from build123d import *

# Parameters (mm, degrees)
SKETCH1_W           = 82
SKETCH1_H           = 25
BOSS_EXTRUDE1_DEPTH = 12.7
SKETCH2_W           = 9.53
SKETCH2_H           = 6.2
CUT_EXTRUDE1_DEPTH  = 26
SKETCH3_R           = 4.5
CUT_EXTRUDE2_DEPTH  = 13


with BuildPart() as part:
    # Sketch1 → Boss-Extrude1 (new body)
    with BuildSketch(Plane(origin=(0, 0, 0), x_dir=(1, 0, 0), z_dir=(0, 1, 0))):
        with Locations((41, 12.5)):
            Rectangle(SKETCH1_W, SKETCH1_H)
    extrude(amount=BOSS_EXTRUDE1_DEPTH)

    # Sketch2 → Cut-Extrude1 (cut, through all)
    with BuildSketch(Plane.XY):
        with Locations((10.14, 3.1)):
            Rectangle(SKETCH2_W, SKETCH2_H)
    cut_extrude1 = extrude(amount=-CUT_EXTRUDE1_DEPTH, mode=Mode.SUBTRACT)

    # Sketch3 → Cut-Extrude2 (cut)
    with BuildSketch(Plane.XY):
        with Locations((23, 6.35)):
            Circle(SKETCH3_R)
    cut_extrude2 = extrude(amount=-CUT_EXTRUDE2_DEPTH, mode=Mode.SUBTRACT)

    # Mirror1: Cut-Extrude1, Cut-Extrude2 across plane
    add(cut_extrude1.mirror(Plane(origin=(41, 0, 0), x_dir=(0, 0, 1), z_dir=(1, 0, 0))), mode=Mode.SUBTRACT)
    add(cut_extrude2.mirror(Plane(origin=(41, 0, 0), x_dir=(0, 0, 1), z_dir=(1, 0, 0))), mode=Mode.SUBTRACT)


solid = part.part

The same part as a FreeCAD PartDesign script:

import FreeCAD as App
import Part
import Sketcher

V = App.Vector
Q = App.Units.Quantity

doc = App.newDocument("Part")
body = doc.addObject("PartDesign::Body", "Body")

# Sketch on XZ plane
sketch1 = body.newObject("Sketcher::SketchObject", "Sketch")
sketch1.AttachmentSupport = (doc.getObject("XZ_Plane"), [""])
sketch1.MapMode = "FlatFace"
sketch1.addGeometry(Part.LineSegment(V(0, -25, 0), V(0, 0, 0)), False)
sketch1.addGeometry(Part.LineSegment(V(0, 0, 0), V(82, 0, 0)), False)
sketch1.addGeometry(Part.LineSegment(V(82, 0, 0), V(82, -25, 0)), False)
sketch1.addGeometry(Part.LineSegment(V(82, -25, 0), V(0, -25, 0)), False)
sketch1.addConstraint(Sketcher.Constraint("Coincident", 0, 2, 1, 1))
sketch1.addConstraint(Sketcher.Constraint("Coincident", 1, 2, 2, 1))
sketch1.addConstraint(Sketcher.Constraint("Coincident", 2, 2, 3, 1))
sketch1.addConstraint(Sketcher.Constraint("Coincident", 3, 2, 0, 1))
sketch1.addConstraint(Sketcher.Constraint("Vertical", 0))
sketch1.addConstraint(Sketcher.Constraint("Horizontal", 1))
sketch1.addConstraint(Sketcher.Constraint("Vertical", 2))
sketch1.addConstraint(Sketcher.Constraint("Horizontal", 3))
sketch1.addConstraint(Sketcher.Constraint("Coincident", 0, 2, -1, 1))
sketch1.addConstraint(Sketcher.Constraint("DistanceX", 1, 1, 1, 2, Q("82 mm")))
sketch1.addConstraint(Sketcher.Constraint("DistanceY", 0, 1, 0, 2, Q("25 mm")))
pad1 = body.newObject("PartDesign::Pad", "Pad")
pad1.Profile = sketch1
pad1.Length = 12.7
pad1.Reversed = True

# Sketch on XY plane
sketch2 = body.newObject("Sketcher::SketchObject", "Sketch001")
sketch2.AttachmentSupport = (doc.getObject("XY_Plane"), [""])
sketch2.MapMode = "FlatFace"
sketch2.addGeometry(Part.LineSegment(V(5, 6, 0), V(5, 0, 0)), False)
sketch2.addGeometry(Part.LineSegment(V(5, 0, 0), V(15, 0, 0)), False)
sketch2.addGeometry(Part.LineSegment(V(15, 0, 0), V(15, 6, 0)), False)
sketch2.addGeometry(Part.LineSegment(V(15, 6, 0), V(5, 6, 0)), False)
sketch2.addConstraint(Sketcher.Constraint("Coincident", 0, 2, 1, 1))
sketch2.addConstraint(Sketcher.Constraint("Coincident", 1, 2, 2, 1))
sketch2.addConstraint(Sketcher.Constraint("Coincident", 2, 2, 3, 1))
sketch2.addConstraint(Sketcher.Constraint("Coincident", 3, 2, 0, 1))
sketch2.addConstraint(Sketcher.Constraint("Vertical", 0))
sketch2.addConstraint(Sketcher.Constraint("Horizontal", 1))
sketch2.addConstraint(Sketcher.Constraint("Vertical", 2))
sketch2.addConstraint(Sketcher.Constraint("Horizontal", 3))
sketch2.addConstraint(Sketcher.Constraint("PointOnObject", 0, 2, -1))
sketch2.addConstraint(Sketcher.Constraint("DistanceY", 0, 2, 0, 1, Q("6.2 mm")))
sketch2.addConstraint(Sketcher.Constraint("DistanceX", 1, 1, 1, 2, Q("9.53 mm")))
sketch2.addConstraint(Sketcher.Constraint("DistanceX", -1, 1, 0, 2, Q("5.375 mm")))
pocket1 = body.newObject("PartDesign::Pocket", "Pocket")
pocket1.Profile = sketch2
pocket1.Type = "ThroughAll"

# Sketch on XY plane
sketch3 = body.newObject("Sketcher::SketchObject", "Sketch002")
sketch3.AttachmentSupport = (doc.getObject("XY_Plane"), [""])
sketch3.MapMode = "FlatFace"
sketch3.addGeometry(Part.Circle(V(23, 6.3, 0), V(0, 0, 1), 4.5), False)
sketch3.addConstraint(Sketcher.Constraint("Diameter", 0, Q("9 mm")))
sketch3.addConstraint(Sketcher.Constraint("DistanceX", -1, 1, 0, 3, Q("23 mm")))
sketch3.addConstraint(Sketcher.Constraint("DistanceY", -1, 1, 0, 3, Q("6.35 mm")))
pocket2 = body.newObject("PartDesign::Pocket", "Pocket001")
pocket2.Profile = sketch3
pocket2.Length = 13
doc.recompute()

datumplane = body.newObject("PartDesign::Plane", "DatumPlane")
datumplane.AttachmentSupport = (doc.getObject("YZ_Plane"), [""])
datumplane.MapMode = "FlatFace"
datumplane.AttachmentOffset = App.Placement(V(0, 0, 41), App.Rotation())
mirrored = body.newObject("PartDesign::Mirrored", "Mirrored")
mirrored.Originals = [pocket1, pocket2]
mirrored.MirrorPlane = (datumplane, [""])
body.Tip = mirrored

doc.recompute()
